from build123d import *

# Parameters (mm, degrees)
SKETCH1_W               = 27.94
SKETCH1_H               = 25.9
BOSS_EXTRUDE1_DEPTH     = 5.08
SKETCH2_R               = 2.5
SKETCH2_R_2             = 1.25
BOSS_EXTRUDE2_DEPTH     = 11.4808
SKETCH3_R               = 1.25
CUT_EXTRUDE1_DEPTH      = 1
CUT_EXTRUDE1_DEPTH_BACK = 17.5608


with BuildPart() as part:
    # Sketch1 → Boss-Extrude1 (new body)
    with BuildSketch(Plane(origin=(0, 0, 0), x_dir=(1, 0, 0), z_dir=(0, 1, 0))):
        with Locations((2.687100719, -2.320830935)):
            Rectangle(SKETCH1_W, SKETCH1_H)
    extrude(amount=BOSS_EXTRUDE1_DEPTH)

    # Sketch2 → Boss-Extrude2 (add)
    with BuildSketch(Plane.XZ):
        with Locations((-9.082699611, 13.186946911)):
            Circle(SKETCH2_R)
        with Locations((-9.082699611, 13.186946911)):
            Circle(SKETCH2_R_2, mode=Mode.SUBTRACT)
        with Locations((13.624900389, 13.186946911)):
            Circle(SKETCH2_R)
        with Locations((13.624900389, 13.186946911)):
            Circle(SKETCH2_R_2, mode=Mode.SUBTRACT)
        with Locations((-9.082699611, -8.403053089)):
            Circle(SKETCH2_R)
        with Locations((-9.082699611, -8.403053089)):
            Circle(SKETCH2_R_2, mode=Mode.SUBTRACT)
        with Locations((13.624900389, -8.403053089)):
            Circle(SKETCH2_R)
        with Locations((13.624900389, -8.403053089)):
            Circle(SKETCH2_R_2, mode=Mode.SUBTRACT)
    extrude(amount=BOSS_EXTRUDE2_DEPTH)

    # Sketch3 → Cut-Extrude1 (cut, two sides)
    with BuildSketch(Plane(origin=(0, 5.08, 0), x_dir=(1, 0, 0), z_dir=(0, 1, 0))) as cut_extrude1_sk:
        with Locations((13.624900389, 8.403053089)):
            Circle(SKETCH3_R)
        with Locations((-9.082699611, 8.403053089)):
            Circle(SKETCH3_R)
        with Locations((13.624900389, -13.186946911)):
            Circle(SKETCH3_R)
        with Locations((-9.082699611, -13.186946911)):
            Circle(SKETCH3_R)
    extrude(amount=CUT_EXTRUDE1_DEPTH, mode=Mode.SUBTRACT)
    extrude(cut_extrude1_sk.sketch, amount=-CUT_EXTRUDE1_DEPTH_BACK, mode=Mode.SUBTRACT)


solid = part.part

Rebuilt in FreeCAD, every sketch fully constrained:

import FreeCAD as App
import Part
import Sketcher

V = App.Vector
Q = App.Units.Quantity


def add_polygon(sketch, points):
    """Adds a closed chain of lines whose ends are joined by coincident constraints."""
    first, n = sketch.GeometryCount, len(points)
    for a, b in zip(points, points[1:] + points[:1]):
        sketch.addGeometry(Part.LineSegment(App.Vector(*a, 0), App.Vector(*b, 0)), False)
    for i in range(n):
        sketch.addConstraint(Sketcher.Constraint("Coincident", first + i, 2, first + (i + 1) % n, 1))

doc = App.newDocument("Part")
params = doc.addObject("Spreadsheet::Sheet", "Params")
for row, (alias, value) in enumerate([
    ("sketch1_height", "25.9 mm"),
    ("sketch1_width", "27.94 mm"),
    ("pad1_length", "5.08 mm"),
    ("sketch2_diameter", "5 mm"),
    ("sketch2_diameter2", "2.5 mm"),
    ("pad2_length", "11.4808 mm"),
    ("sketch3_diameter", "2.5 mm"),
], start=1):
    params.set(f"A{row}", alias)
    params.set(f"B{row}", "=" + value)
    params.setAlias(f"B{row}", alias)

body = doc.addObject("PartDesign::Body", "Body")

sketch1 = doc.addObject("Sketcher::SketchObject", "Sketch")
body.addObject(sketch1)
sketch1.AttachmentSupport = (doc.XZ_Plane, [""])
sketch1.MapMode = "FlatFace"
add_polygon(sketch1, [(-11, -11), (-11, 15), (17, 15), (17, -11)])
sketch1.addConstraint(Sketcher.Constraint("Vertical", 0))
sketch1.addConstraint(Sketcher.Constraint("Horizontal", 1))
sketch1.addConstraint(Sketcher.Constraint("Vertical", 2))
sketch1.addConstraint(Sketcher.Constraint("Horizontal", 3))
sketch1.addConstraint(Sketcher.Constraint("DistanceY", 0, 1, 0, 2, Q("25.9 mm")))
sketch1.addConstraint(Sketcher.Constraint("DistanceX", 1, 1, 1, 2, Q("27.94 mm")))
sketch1.addConstraint(Sketcher.Constraint("DistanceX", 0, 2, -1, 1, Q("11.282899 mm")))
sketch1.addConstraint(Sketcher.Constraint("DistanceY", -1, 1, 0, 2, Q("15.270831 mm")))
sketch1.setExpression("Constraints[8]", "Params.sketch1_height")
sketch1.setExpression("Constraints[9]", "Params.sketch1_width")
pad1 = doc.addObject("PartDesign::Pad", "Pad")
body.addObject(pad1)
pad1.Profile = sketch1
pad1.setExpression("Length", "Params.pad1_length")
pad1.Reversed = True

sketch2 = doc.addObject("Sketcher::SketchObject", "Sketch001")
body.addObject(sketch2)
sketch2.AttachmentSupport = (doc.XZ_Plane, [""])
sketch2.MapMode = "FlatFace"
sketch2.addGeometry(Part.Circle(V(-9.1, 13.2, 0), V(0, 0, 1), 2.5), False)
sketch2.addGeometry(Part.Circle(V(-9.1, 13.2, 0), V(0, 0, 1), 1.2), False)
sketch2.addGeometry(Part.Circle(V(13.6, 13.2, 0), V(0, 0, 1), 2.5), False)
sketch2.addGeometry(Part.Circle(V(13.6, 13.2, 0), V(0, 0, 1), 1.2), False)
sketch2.addGeometry(Part.Circle(V(-9.1, -8.4, 0), V(0, 0, 1), 2.5), False)
sketch2.addGeometry(Part.Circle(V(-9.1, -8.4, 0), V(0, 0, 1), 1.2), False)
sketch2.addGeometry(Part.Circle(V(13.6, -8.4, 0), V(0, 0, 1), 2.5), False)
sketch2.addGeometry(Part.Circle(V(13.6, -8.4, 0), V(0, 0, 1), 1.2), False)
sketch2.addConstraint(Sketcher.Constraint("Coincident", 1, 3, 0, 3))
sketch2.addConstraint(Sketcher.Constraint("Coincident", 3, 3, 2, 3))
sketch2.addConstraint(Sketcher.Constraint("Coincident", 5, 3, 4, 3))
sketch2.addConstraint(Sketcher.Constraint("Coincident", 7, 3, 6, 3))
sketch2.addConstraint(Sketcher.Constraint("Equal", 0, 2))
sketch2.addConstraint(Sketcher.Constraint("Equal", 1, 3))
sketch2.addConstraint(Sketcher.Constraint("Equal", 2, 4))
sketch2.addConstraint(Sketcher.Constraint("Equal", 3, 5))
sketch2.addConstraint(Sketcher.Constraint("Equal", 4, 6))
sketch2.addConstraint(Sketcher.Constraint("Equal", 5, 7))
sketch2.addConstraint(Sketcher.Constraint("Horizontal", 1, 3, 2, 3))
sketch2.addConstraint(Sketcher.Constraint("Horizontal", 5, 3, 6, 3))
sketch2.addConstraint(Sketcher.Constraint("Vertical", 1, 3, 4, 3))
sketch2.addConstraint(Sketcher.Constraint("Vertical", 3, 3, 6, 3))
sketch2.addConstraint(Sketcher.Constraint("Diameter", 0, Q("5 mm")))
sketch2.addConstraint(Sketcher.Constraint("Diameter", 1, Q("2.5 mm")))
sketch2.addConstraint(Sketcher.Constraint("DistanceY", 4, 3, 0, 3, Q("21.59 mm")))
sketch2.addConstraint(Sketcher.Constraint("DistanceX", 0, 3, -1, 1, Q("9.0827 mm")))
sketch2.addConstraint(Sketcher.Constraint("DistanceX", -1, 1, 2, 3, Q("13.6249 mm")))
sketch2.addConstraint(Sketcher.Constraint("DistanceY", -1, 1, 0, 3, Q("13.186947 mm")))
sketch2.setExpression("Constraints[14]", "Params.sketch2_diameter")
sketch2.setExpression("Constraints[15]", "Params.sketch2_diameter2")
pad2 = doc.addObject("PartDesign::Pad", "Pad001")
body.addObject(pad2)
pad2.Profile = sketch2
pad2.setExpression("Length", "Params.pad2_length")

sketch3 = doc.addObject("Sketcher::SketchObject", "Sketch002")
body.addObject(sketch3)
sketch3.AttachmentSupport = (doc.XZ_Plane, [""])
sketch3.MapMode = "FlatFace"
sketch3.AttachmentOffset = App.Placement(V(0, 0, -5.08), App.Rotation())
sketch3.addGeometry(Part.Circle(V(13.6, -8.4, 0), V(0, 0, 1), 1.2), False)
sketch3.addGeometry(Part.Circle(V(-9.1, -8.4, 0), V(0, 0, 1), 1.2), False)
sketch3.addGeometry(Part.Circle(V(13.6, 13.2, 0), V(0, 0, 1), 1.2), False)
sketch3.addGeometry(Part.Circle(V(-9.1, 13.2, 0), V(0, 0, 1), 1.2), False)
sketch3.addConstraint(Sketcher.Constraint("Equal", 0, 1))
sketch3.addConstraint(Sketcher.Constraint("Equal", 1, 2))
sketch3.addConstraint(Sketcher.Constraint("Equal", 2, 3))
sketch3.addConstraint(Sketcher.Constraint("Horizontal", 0, 3, 1, 3))
sketch3.addConstraint(Sketcher.Constraint("Horizontal", 2, 3, 3, 3))
sketch3.addConstraint(Sketcher.Constraint("Vertical", 0, 3, 2, 3))
sketch3.addConstraint(Sketcher.Constraint("Vertical", 1, 3, 3, 3))
sketch3.addConstraint(Sketcher.Constraint("Diameter", 0, Q("2.5 mm")))
sketch3.addConstraint(Sketcher.Constraint("DistanceY", 0, 3, 2, 3, Q("21.59 mm")))
sketch3.addConstraint(Sketcher.Constraint("DistanceX", -1, 1, 0, 3, Q("13.6249 mm")))
sketch3.addConstraint(Sketcher.Constraint("DistanceX", 1, 3, -1, 1, Q("9.0827 mm")))
sketch3.addConstraint(Sketcher.Constraint("DistanceY", 0, 3, -1, 1, Q("8.403053 mm")))
sketch3.setExpression("Constraints[7]", "Params.sketch3_diameter")
pocket1 = doc.addObject("PartDesign::Pocket", "Pocket")
body.addObject(pocket1)
pocket1.Profile = sketch3
pocket1.Type = "ThroughAll"
pocket1.Midplane = True

doc.recompute()
